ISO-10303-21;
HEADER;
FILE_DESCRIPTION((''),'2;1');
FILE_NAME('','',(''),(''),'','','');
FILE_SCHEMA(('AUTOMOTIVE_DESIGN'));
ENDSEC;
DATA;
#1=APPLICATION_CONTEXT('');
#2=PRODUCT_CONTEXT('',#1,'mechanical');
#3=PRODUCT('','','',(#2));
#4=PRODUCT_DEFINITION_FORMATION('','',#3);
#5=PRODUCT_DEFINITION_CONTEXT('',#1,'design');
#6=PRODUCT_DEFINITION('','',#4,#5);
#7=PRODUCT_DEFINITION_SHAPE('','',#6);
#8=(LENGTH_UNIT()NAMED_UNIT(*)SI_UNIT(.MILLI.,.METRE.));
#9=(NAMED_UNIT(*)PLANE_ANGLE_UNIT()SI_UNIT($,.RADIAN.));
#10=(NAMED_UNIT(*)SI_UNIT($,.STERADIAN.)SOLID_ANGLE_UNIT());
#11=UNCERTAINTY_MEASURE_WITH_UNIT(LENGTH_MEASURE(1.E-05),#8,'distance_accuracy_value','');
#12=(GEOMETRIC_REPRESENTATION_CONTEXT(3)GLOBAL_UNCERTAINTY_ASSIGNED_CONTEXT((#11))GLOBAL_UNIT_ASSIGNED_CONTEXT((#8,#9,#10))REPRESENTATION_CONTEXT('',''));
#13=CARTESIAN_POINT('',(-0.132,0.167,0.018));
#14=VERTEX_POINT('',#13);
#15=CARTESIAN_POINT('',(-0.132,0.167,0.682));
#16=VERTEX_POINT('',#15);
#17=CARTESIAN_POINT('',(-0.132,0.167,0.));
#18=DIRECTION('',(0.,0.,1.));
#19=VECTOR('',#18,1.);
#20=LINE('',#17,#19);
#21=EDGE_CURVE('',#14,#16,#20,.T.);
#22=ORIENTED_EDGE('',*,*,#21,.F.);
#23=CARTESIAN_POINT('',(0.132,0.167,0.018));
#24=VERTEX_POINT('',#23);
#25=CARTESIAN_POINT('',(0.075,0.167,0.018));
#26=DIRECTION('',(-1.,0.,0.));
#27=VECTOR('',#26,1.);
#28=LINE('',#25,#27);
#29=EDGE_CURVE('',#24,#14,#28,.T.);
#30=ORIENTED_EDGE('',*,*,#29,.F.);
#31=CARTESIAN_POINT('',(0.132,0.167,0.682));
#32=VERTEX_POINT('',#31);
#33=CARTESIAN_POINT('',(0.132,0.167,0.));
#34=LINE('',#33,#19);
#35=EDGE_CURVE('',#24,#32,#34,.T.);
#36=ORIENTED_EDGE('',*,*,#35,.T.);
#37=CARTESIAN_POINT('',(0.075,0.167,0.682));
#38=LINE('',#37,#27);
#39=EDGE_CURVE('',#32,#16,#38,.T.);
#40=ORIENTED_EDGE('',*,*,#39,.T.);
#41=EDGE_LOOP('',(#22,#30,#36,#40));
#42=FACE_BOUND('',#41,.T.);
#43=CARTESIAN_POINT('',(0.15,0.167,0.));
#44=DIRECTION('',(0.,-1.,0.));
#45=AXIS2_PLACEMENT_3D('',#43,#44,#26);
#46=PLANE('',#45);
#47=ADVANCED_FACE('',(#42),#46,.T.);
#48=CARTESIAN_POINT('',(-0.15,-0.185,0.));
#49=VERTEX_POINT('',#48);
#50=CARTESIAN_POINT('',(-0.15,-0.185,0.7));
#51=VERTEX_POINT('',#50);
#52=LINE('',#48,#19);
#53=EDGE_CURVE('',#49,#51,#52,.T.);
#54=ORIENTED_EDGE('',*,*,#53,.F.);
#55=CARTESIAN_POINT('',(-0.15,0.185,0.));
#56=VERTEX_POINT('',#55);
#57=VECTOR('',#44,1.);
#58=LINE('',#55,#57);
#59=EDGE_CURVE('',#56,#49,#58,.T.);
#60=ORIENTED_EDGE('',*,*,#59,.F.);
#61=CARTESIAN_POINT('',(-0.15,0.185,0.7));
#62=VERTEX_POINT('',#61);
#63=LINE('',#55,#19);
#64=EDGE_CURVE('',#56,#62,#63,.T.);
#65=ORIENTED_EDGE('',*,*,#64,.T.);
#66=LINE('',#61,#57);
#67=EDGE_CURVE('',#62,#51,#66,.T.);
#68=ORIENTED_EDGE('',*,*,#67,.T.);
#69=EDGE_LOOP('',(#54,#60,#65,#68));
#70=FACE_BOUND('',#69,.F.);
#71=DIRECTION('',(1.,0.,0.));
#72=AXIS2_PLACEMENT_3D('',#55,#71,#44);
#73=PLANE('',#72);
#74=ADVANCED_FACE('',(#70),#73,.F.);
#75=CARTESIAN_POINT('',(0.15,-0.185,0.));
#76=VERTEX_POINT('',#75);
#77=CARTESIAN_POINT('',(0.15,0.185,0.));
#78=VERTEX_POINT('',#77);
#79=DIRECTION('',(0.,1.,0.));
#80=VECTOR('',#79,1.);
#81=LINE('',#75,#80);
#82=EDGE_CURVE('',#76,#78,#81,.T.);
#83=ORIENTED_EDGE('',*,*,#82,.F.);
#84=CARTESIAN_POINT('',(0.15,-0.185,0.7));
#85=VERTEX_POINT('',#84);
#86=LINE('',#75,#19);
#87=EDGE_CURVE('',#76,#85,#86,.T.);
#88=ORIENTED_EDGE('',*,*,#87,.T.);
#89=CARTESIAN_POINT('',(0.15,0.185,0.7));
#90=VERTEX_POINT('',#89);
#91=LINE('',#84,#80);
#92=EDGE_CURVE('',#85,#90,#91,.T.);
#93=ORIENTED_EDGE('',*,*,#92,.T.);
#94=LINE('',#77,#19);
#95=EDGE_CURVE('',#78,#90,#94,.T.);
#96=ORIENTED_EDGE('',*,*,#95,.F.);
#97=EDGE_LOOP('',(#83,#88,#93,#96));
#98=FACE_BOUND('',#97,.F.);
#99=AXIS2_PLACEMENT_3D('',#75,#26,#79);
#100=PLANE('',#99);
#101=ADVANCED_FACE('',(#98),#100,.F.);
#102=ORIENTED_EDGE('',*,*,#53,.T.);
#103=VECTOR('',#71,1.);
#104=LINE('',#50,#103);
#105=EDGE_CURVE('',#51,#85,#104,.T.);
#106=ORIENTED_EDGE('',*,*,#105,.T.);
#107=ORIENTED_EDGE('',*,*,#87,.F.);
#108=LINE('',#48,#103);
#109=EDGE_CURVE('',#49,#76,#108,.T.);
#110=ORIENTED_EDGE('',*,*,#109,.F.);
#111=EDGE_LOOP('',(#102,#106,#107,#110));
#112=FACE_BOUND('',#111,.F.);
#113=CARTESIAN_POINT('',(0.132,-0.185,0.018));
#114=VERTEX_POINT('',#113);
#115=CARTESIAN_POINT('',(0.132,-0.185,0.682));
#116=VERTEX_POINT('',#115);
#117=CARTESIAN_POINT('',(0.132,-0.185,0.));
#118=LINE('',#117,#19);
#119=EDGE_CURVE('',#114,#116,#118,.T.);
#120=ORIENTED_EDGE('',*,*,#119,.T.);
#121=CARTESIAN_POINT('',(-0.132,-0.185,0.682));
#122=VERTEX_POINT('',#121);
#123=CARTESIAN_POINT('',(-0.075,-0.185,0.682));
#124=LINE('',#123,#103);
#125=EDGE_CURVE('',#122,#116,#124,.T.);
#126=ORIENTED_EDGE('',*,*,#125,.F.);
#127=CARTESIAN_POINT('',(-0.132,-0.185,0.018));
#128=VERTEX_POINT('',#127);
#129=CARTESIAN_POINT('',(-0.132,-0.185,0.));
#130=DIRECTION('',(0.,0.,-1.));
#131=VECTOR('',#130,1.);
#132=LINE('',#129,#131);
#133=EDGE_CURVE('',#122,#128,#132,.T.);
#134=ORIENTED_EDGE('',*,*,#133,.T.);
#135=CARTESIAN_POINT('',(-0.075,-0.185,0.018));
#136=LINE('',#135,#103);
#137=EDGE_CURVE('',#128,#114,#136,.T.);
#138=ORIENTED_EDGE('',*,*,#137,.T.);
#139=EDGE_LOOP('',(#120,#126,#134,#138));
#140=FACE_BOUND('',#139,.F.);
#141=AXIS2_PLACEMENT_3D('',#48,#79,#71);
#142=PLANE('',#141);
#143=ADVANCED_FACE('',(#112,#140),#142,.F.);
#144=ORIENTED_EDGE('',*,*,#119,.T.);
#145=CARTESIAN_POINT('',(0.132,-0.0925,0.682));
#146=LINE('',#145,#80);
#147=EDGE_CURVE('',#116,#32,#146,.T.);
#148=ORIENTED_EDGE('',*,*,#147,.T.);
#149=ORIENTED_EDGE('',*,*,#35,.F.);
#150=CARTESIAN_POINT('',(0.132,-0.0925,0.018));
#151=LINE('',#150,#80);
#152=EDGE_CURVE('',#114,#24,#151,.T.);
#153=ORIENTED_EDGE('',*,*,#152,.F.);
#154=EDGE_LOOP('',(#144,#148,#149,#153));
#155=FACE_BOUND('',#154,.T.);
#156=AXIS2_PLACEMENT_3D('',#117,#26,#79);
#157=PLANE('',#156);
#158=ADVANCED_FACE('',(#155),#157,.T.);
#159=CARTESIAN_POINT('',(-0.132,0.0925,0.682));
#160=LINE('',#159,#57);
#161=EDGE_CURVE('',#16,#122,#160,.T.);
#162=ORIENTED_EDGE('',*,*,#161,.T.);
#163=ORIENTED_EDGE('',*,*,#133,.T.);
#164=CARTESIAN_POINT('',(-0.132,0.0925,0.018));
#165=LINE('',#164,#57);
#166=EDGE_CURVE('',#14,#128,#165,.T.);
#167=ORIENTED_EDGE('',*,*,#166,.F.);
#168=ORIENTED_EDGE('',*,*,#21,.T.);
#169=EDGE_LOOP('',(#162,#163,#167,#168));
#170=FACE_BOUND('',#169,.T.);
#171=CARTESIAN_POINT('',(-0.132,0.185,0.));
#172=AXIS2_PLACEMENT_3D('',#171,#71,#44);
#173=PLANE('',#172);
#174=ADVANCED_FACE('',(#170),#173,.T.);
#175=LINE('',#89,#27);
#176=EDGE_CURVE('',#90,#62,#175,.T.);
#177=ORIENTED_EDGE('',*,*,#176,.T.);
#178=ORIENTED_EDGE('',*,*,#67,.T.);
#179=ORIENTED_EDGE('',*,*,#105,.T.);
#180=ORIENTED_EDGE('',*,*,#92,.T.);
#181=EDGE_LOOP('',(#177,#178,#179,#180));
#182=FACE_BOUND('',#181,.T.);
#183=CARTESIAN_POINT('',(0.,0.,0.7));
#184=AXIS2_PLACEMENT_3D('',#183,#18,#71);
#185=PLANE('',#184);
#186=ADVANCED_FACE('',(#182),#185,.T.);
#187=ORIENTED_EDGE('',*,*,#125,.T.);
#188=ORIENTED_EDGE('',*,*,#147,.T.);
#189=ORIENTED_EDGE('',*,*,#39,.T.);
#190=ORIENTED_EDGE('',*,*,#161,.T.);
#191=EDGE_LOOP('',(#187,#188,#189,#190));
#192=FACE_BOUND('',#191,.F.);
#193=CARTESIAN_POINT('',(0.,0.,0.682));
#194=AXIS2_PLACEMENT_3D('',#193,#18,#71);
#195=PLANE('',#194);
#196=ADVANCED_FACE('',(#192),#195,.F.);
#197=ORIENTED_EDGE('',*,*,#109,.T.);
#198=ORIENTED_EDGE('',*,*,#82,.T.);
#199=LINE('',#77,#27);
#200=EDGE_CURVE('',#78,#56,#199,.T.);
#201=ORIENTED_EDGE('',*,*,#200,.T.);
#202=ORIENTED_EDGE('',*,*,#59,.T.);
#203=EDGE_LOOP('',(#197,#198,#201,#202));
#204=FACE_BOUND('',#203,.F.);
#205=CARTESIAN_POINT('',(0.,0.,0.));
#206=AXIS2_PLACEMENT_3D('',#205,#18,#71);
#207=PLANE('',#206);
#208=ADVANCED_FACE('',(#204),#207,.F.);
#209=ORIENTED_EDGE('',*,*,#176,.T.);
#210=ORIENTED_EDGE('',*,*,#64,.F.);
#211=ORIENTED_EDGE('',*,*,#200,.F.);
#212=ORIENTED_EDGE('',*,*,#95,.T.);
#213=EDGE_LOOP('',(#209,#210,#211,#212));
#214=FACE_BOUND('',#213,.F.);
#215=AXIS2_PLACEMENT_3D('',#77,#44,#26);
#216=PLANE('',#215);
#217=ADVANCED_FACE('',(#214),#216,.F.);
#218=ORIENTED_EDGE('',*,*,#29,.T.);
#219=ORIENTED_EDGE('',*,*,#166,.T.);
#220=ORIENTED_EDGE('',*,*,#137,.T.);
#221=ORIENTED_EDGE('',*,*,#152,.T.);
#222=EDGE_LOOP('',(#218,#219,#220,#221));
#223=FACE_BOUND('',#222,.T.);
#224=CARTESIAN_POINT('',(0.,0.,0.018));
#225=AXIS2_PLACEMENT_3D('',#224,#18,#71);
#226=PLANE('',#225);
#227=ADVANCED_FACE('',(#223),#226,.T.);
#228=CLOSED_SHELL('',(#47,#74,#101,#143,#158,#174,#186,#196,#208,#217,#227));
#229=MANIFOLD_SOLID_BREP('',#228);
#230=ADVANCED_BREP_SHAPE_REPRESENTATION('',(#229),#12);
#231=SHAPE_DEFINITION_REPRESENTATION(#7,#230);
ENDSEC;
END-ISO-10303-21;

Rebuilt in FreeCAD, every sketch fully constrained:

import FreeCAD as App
import Part
import Sketcher

V = App.Vector
Q = App.Units.Quantity


def faces_at(feature, points):
    """Names of the faces that lie closest to the given points."""
    faces = feature.Shape.Faces
    near = lambda p: min(range(len(faces)), key=lambda i: faces[i].distToShape(Part.Vertex(*p))[0])
    return sorted({f"Face{near(p) + 1}" for p in points})

doc = App.newDocument("Part")
body = doc.addObject("PartDesign::Body", "Body")

sketch1 = body.newObject("Sketcher::SketchObject", "Sketch")
sketch1.AttachmentSupport = (doc.getObject("XY_Plane"), [""])
sketch1.MapMode = "FlatFace"
sketch1.addGeometry([
    Part.LineSegment(V(-0.15, 0.18, 0), V(-0.15, -0.18, 0)),
    Part.LineSegment(V(-0.15, -0.18, 0), V(0.15, -0.18, 0)),
    Part.LineSegment(V(0.15, -0.18, 0), V(0.15, 0.18, 0)),
    Part.LineSegment(V(0.15, 0.18, 0), V(-0.15, 0.18, 0)),
], False)
sketch1.addConstraint([
    Sketcher.Constraint("Coincident", 0, 2, 1, 1),
    Sketcher.Constraint("Coincident", 1, 2, 2, 1),
    Sketcher.Constraint("Coincident", 2, 2, 3, 1),
    Sketcher.Constraint("Coincident", 3, 2, 0, 1),
    Sketcher.Constraint("Vertical", 0),
    Sketcher.Constraint("Horizontal", 1),
    Sketcher.Constraint("Vertical", 2),
    Sketcher.Constraint("Horizontal", 3),
    Sketcher.Constraint("Symmetric", 0, 2, 2, 2, -1, 1),
    Sketcher.Constraint("DistanceX", 0, 2, -1, 1, Q("0.15 mm")),
    Sketcher.Constraint("DistanceY", 0, 2, 0, 1, Q("0.37 mm")),
])
pad1 = body.newObject("PartDesign::Pad", "Pad")
pad1.Profile = sketch1
pad1.Length = 0.7
doc.recompute()

thickness = body.newObject("PartDesign::Thickness", "Thickness")
thickness.Base = (pad1, faces_at(pad1, [(-0.103, -0.185, 0.576)]))
thickness.Value = 0.018
thickness.Reversed = True
thickness.Join = "Intersection"

doc.recompute()
